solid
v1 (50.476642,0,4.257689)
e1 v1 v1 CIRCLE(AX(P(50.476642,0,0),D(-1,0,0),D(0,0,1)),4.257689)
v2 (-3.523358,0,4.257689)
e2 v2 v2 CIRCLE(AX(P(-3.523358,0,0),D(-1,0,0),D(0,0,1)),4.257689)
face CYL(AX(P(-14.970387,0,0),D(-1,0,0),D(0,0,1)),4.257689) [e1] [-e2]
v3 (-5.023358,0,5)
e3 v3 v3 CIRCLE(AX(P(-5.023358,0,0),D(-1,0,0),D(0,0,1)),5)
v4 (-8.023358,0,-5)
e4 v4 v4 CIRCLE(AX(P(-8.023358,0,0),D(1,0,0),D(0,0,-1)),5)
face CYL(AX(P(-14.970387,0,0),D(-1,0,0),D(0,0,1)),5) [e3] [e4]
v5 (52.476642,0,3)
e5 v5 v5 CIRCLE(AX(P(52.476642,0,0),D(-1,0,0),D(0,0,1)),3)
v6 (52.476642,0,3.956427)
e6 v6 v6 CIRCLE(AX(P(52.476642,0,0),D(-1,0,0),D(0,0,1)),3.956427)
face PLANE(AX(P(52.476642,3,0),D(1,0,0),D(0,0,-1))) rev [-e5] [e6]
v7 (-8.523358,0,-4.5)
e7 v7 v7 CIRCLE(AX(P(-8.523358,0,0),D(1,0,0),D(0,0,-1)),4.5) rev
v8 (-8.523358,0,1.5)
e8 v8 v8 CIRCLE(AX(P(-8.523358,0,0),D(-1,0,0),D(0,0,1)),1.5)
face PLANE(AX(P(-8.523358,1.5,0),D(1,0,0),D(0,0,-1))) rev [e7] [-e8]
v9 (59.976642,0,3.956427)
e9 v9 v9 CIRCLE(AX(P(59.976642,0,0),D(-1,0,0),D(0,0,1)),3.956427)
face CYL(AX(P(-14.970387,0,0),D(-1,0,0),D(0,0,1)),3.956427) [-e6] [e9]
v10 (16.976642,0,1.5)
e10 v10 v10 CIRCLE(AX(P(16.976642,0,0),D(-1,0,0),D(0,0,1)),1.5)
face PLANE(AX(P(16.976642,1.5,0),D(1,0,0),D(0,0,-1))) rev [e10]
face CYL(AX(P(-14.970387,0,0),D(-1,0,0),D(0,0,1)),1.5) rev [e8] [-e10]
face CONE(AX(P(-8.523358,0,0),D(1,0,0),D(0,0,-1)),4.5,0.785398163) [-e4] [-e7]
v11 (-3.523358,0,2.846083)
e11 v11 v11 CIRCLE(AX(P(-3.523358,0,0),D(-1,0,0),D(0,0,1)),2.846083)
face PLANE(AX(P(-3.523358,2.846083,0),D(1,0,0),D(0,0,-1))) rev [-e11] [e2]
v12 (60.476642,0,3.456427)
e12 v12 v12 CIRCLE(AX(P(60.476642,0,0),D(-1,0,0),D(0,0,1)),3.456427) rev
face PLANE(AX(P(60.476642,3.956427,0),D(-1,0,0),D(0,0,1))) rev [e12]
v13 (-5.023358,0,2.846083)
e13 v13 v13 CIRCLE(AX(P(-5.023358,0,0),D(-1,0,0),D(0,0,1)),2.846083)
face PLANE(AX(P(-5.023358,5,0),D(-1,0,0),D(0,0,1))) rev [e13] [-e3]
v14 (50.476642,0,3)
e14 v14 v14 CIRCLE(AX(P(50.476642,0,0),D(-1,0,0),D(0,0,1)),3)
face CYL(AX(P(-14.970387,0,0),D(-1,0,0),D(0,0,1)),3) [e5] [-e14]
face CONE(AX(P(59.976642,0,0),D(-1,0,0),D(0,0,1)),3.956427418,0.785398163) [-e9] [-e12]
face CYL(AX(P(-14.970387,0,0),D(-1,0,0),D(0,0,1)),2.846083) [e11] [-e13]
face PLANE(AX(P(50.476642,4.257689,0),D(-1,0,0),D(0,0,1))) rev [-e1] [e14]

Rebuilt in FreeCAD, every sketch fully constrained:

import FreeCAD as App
import Part
import Sketcher
from FreeCAD import Vector


def edges_at(feature, points):
    """Names of the edges that pass closest to the given points."""
    edges = feature.Shape.Edges
    near = lambda p: min(range(len(edges)), key=lambda i: edges[i].distToShape(Part.Vertex(*p))[0])
    return sorted({f"Edge{near(p) + 1}" for p in points})

doc = App.newDocument("Part")
body = doc.addObject("PartDesign::Body", "Body")

# Sketch on XY plane
sketch1 = doc.addObject("Sketcher::SketchObject", "Sketch")
body.addObject(sketch1)
sketch1.AttachmentSupport = (doc.XY_Plane, [""])
sketch1.MapMode = "FlatFace"
sketch1.addGeometry([
    Part.LineSegment(Vector(-8.523358, 5, 0), Vector(-8.523358, 1.5, 0)),  # 0
    Part.LineSegment(Vector(-8.523358, 1.5, 0), Vector(16.976642, 1.5, 0)),  # 1
    Part.LineSegment(Vector(16.976642, 1.5, 0), Vector(16.976642, 0, 0)),  # 2
    Part.LineSegment(Vector(16.976642, 0, 0), Vector(60.476642, 0, 0)),  # 3
    Part.LineSegment(Vector(60.476642, 0, 0), Vector(60.476642, 3.956427, 0)),  # 4
    Part.LineSegment(Vector(60.476642, 3.956427, 0), Vector(52.476642, 3.956427, 0)),  # 5
    Part.LineSegment(Vector(52.476642, 3.956427, 0), Vector(52.476642, 3, 0)),  # 6
    Part.LineSegment(Vector(52.476642, 3, 0), Vector(50.476642, 3, 0)),  # 7
    Part.LineSegment(Vector(50.476642, 3, 0), Vector(50.476642, 4.257689, 0)),  # 8
    Part.LineSegment(Vector(50.476642, 4.257689, 0), Vector(-3.523358, 4.257689, 0)),  # 9
    Part.LineSegment(Vector(-3.523358, 4.257689, 0), Vector(-3.523358, 2.846083, 0)),  # 10
    Part.LineSegment(Vector(-3.523358, 2.846083, 0), Vector(-5.023358, 2.846083, 0)),  # 11
    Part.LineSegment(Vector(-5.023358, 2.846083, 0), Vector(-5.023358, 5, 0)),  # 12
    Part.LineSegment(Vector(-5.023358, 5, 0), Vector(-8.523358, 5, 0)),  # 13
], False)
sketch1.addConstraint([
    Sketcher.Constraint("Coincident", 0, 2, 1, 1),
    Sketcher.Constraint("Coincident", 1, 2, 2, 1),
    Sketcher.Constraint("Coincident", 2, 2, 3, 1),
    Sketcher.Constraint("Coincident", 3, 2, 4, 1),
    Sketcher.Constraint("Coincident", 4, 2, 5, 1),
    Sketcher.Constraint("Coincident", 5, 2, 6, 1),
    Sketcher.Constraint("Coincident", 6, 2, 7, 1),
    Sketcher.Constraint("Coincident", 7, 2, 8, 1),
    Sketcher.Constraint("Coincident", 8, 2, 9, 1),
    Sketcher.Constraint("Coincident", 9, 2, 10, 1),
    Sketcher.Constraint("Coincident", 10, 2, 11, 1),
    Sketcher.Constraint("Coincident", 11, 2, 12, 1),
    Sketcher.Constraint("Coincident", 12, 2, 13, 1),
    Sketcher.Constraint("Coincident", 13, 2, 0, 1),
    Sketcher.Constraint("Vertical", 0),
    Sketcher.Constraint("Horizontal", 1),
    Sketcher.Constraint("Vertical", 2),
    Sketcher.Constraint("Horizontal", 3),
    Sketcher.Constraint("Vertical", 4),
    Sketcher.Constraint("Horizontal", 5),
    Sketcher.Constraint("Vertical", 6),
    Sketcher.Constraint("Horizontal", 7),
    Sketcher.Constraint("Vertical", 8),
    Sketcher.Constraint("Horizontal", 9),
    Sketcher.Constraint("Vertical", 10),
    Sketcher.Constraint("Horizontal", 11),
    Sketcher.Constraint("Vertical", 12),
    Sketcher.Constraint("Horizontal", 13),
    Sketcher.Constraint("PointOnObject", 2, 2, -1),
    Sketcher.Constraint("Equal", 13, 0),
    Sketcher.Constraint("Equal", 11, 2),
    Sketcher.Constraint("DistanceX", 5, 2, 5, 1, 8.0),
    Sketcher.Constraint("DistanceX", 7, 2, 7, 1, 2.0),
    Sketcher.Constraint("DistanceX", 9, 2, 9, 1, 54.0),
    Sketcher.Constraint("DistanceX", 1, 1, 1, 2, 25.5),
    Sketcher.Constraint("DistanceX", 3, 1, 3, 2, 43.5),
    Sketcher.Constraint("DistanceX", 11, 2, 11, 1, 1.5),
    Sketcher.Constraint("DistanceY", -1, 1, 6, 2, 3.0),
    Sketcher.Constraint("DistanceY", 8, 1, 8, 2, 1.257689),
    Sketcher.Constraint("DistanceY", 4, 1, 4, 2, 3.956427),
    Sketcher.Constraint("DistanceY", 10, 2, 10, 1, 1.411606),
    Sketcher.Constraint("DistanceX", 0, 2, -1, 1, 8.523358),
])
revolution = doc.addObject("PartDesign::Revolution", "Revolution")
body.addObject(revolution)
revolution.Profile = sketch1
revolution.ReferenceAxis = (sketch1, ["H_Axis"])
revolution.Angle = 360
doc.recompute()

chamfer = doc.addObject("PartDesign::Chamfer", "Chamfer")
body.addObject(chamfer)
chamfer.Base = (revolution, edges_at(revolution, [(-8.523, -5, 0)]))
chamfer.Size = 0.5
doc.recompute()

chamfer2 = doc.addObject("PartDesign::Chamfer", "Chamfer001")
body.addObject(chamfer2)
chamfer2.Base = (chamfer, edges_at(chamfer, [(60.477, -3.956, 0)]))
chamfer2.Size = 0.5

doc.recompute()
